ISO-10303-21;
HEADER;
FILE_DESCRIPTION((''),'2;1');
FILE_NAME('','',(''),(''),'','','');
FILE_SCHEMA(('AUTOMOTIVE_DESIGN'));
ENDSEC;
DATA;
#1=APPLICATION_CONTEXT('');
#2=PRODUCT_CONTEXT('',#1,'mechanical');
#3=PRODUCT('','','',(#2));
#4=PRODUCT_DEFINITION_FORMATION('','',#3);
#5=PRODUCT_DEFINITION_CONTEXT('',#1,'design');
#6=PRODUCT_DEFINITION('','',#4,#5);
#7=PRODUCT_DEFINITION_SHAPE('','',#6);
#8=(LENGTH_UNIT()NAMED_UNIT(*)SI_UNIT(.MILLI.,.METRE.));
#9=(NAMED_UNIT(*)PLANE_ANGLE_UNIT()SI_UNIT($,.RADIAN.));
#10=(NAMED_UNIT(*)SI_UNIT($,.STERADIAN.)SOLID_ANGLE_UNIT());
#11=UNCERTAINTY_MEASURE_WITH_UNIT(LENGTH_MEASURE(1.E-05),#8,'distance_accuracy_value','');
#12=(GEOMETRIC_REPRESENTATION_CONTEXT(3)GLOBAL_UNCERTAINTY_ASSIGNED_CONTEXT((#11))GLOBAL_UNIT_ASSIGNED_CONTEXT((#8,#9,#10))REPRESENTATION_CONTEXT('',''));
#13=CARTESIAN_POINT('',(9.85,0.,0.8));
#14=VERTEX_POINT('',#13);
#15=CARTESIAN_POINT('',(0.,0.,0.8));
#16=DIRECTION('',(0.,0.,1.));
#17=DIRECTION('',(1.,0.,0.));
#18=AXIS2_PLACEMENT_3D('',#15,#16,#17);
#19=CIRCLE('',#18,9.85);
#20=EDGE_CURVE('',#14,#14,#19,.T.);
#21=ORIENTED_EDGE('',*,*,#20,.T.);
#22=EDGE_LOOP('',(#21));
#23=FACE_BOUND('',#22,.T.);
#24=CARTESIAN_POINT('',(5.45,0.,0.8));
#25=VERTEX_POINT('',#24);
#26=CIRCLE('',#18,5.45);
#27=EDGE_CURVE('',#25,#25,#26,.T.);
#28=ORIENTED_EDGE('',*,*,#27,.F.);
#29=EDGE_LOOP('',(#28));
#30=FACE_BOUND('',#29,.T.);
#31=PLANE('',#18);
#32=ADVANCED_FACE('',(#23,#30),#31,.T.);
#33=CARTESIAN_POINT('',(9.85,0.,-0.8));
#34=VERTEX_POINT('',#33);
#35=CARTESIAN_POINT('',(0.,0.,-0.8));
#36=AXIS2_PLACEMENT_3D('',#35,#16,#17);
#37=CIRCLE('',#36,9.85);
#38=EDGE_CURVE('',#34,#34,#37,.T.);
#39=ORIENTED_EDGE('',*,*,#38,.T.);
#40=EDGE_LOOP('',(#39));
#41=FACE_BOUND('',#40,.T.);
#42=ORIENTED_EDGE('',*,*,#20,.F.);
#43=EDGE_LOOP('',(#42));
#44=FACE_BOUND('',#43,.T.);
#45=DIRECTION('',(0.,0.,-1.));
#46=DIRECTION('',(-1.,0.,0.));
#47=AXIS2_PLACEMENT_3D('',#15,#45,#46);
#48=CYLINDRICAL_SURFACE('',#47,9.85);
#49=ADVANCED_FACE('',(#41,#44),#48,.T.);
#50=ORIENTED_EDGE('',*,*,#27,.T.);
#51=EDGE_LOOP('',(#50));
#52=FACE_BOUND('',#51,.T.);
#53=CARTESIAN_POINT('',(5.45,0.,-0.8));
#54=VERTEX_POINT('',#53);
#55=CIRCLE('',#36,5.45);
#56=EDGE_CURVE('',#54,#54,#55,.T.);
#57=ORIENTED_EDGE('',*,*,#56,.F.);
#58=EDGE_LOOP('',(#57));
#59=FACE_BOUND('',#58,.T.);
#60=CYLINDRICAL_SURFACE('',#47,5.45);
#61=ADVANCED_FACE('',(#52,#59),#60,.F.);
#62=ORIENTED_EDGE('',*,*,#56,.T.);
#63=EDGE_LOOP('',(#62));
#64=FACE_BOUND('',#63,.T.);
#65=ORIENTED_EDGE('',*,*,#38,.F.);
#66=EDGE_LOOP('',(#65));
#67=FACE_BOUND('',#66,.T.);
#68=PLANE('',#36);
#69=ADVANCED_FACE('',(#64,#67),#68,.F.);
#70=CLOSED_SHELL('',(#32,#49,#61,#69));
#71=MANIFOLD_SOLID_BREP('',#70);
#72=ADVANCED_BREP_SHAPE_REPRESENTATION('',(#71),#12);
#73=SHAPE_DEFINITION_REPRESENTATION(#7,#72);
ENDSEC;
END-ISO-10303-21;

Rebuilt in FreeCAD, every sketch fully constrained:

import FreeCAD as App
import Part
import Sketcher
from FreeCAD import Vector

doc = App.newDocument("Part")
params = doc.addObject("Spreadsheet::Sheet", "Params")
for row, (alias, value) in enumerate([
    ("sketch1_diameter", "19.7 mm"),
    ("sketch1_diameter2", "10.9 mm"),
    ("pad1_length", "1.6 mm"),
], start=1):
    params.set(f"A{row}", alias)
    params.set(f"B{row}", "=" + value)
    params.setAlias(f"B{row}", alias)

body = doc.addObject("PartDesign::Body", "Body")

sketch1 = body.newObject("Sketcher::SketchObject", "Sketch")
sketch1.AttachmentSupport = (doc.getObject("XY_Plane"), [""])
sketch1.MapMode = "FlatFace"
sketch1.addGeometry([
    Part.Circle(Vector(0, 0, 0), Vector(0, 0, 1), 10),
    Part.Circle(Vector(0, 0, 0), Vector(0, 0, 1), 5),
], False)
sketch1.addConstraint([
    Sketcher.Constraint("Coincident", 0, 3, -1, 1),
    Sketcher.Constraint("Coincident", 1, 3, -1, 1),
    Sketcher.Constraint("Diameter", 0, 19.7),
    Sketcher.Constraint("Diameter", 1, 10.9),
])
sketch1.setExpression("Constraints[2]", "Params.sketch1_diameter")
sketch1.setExpression("Constraints[3]", "Params.sketch1_diameter2")
pad1 = body.newObject("PartDesign::Pad", "Pad")
pad1.Profile = sketch1
pad1.setExpression("Length", "Params.pad1_length")
pad1.Midplane = True

doc.recompute()
